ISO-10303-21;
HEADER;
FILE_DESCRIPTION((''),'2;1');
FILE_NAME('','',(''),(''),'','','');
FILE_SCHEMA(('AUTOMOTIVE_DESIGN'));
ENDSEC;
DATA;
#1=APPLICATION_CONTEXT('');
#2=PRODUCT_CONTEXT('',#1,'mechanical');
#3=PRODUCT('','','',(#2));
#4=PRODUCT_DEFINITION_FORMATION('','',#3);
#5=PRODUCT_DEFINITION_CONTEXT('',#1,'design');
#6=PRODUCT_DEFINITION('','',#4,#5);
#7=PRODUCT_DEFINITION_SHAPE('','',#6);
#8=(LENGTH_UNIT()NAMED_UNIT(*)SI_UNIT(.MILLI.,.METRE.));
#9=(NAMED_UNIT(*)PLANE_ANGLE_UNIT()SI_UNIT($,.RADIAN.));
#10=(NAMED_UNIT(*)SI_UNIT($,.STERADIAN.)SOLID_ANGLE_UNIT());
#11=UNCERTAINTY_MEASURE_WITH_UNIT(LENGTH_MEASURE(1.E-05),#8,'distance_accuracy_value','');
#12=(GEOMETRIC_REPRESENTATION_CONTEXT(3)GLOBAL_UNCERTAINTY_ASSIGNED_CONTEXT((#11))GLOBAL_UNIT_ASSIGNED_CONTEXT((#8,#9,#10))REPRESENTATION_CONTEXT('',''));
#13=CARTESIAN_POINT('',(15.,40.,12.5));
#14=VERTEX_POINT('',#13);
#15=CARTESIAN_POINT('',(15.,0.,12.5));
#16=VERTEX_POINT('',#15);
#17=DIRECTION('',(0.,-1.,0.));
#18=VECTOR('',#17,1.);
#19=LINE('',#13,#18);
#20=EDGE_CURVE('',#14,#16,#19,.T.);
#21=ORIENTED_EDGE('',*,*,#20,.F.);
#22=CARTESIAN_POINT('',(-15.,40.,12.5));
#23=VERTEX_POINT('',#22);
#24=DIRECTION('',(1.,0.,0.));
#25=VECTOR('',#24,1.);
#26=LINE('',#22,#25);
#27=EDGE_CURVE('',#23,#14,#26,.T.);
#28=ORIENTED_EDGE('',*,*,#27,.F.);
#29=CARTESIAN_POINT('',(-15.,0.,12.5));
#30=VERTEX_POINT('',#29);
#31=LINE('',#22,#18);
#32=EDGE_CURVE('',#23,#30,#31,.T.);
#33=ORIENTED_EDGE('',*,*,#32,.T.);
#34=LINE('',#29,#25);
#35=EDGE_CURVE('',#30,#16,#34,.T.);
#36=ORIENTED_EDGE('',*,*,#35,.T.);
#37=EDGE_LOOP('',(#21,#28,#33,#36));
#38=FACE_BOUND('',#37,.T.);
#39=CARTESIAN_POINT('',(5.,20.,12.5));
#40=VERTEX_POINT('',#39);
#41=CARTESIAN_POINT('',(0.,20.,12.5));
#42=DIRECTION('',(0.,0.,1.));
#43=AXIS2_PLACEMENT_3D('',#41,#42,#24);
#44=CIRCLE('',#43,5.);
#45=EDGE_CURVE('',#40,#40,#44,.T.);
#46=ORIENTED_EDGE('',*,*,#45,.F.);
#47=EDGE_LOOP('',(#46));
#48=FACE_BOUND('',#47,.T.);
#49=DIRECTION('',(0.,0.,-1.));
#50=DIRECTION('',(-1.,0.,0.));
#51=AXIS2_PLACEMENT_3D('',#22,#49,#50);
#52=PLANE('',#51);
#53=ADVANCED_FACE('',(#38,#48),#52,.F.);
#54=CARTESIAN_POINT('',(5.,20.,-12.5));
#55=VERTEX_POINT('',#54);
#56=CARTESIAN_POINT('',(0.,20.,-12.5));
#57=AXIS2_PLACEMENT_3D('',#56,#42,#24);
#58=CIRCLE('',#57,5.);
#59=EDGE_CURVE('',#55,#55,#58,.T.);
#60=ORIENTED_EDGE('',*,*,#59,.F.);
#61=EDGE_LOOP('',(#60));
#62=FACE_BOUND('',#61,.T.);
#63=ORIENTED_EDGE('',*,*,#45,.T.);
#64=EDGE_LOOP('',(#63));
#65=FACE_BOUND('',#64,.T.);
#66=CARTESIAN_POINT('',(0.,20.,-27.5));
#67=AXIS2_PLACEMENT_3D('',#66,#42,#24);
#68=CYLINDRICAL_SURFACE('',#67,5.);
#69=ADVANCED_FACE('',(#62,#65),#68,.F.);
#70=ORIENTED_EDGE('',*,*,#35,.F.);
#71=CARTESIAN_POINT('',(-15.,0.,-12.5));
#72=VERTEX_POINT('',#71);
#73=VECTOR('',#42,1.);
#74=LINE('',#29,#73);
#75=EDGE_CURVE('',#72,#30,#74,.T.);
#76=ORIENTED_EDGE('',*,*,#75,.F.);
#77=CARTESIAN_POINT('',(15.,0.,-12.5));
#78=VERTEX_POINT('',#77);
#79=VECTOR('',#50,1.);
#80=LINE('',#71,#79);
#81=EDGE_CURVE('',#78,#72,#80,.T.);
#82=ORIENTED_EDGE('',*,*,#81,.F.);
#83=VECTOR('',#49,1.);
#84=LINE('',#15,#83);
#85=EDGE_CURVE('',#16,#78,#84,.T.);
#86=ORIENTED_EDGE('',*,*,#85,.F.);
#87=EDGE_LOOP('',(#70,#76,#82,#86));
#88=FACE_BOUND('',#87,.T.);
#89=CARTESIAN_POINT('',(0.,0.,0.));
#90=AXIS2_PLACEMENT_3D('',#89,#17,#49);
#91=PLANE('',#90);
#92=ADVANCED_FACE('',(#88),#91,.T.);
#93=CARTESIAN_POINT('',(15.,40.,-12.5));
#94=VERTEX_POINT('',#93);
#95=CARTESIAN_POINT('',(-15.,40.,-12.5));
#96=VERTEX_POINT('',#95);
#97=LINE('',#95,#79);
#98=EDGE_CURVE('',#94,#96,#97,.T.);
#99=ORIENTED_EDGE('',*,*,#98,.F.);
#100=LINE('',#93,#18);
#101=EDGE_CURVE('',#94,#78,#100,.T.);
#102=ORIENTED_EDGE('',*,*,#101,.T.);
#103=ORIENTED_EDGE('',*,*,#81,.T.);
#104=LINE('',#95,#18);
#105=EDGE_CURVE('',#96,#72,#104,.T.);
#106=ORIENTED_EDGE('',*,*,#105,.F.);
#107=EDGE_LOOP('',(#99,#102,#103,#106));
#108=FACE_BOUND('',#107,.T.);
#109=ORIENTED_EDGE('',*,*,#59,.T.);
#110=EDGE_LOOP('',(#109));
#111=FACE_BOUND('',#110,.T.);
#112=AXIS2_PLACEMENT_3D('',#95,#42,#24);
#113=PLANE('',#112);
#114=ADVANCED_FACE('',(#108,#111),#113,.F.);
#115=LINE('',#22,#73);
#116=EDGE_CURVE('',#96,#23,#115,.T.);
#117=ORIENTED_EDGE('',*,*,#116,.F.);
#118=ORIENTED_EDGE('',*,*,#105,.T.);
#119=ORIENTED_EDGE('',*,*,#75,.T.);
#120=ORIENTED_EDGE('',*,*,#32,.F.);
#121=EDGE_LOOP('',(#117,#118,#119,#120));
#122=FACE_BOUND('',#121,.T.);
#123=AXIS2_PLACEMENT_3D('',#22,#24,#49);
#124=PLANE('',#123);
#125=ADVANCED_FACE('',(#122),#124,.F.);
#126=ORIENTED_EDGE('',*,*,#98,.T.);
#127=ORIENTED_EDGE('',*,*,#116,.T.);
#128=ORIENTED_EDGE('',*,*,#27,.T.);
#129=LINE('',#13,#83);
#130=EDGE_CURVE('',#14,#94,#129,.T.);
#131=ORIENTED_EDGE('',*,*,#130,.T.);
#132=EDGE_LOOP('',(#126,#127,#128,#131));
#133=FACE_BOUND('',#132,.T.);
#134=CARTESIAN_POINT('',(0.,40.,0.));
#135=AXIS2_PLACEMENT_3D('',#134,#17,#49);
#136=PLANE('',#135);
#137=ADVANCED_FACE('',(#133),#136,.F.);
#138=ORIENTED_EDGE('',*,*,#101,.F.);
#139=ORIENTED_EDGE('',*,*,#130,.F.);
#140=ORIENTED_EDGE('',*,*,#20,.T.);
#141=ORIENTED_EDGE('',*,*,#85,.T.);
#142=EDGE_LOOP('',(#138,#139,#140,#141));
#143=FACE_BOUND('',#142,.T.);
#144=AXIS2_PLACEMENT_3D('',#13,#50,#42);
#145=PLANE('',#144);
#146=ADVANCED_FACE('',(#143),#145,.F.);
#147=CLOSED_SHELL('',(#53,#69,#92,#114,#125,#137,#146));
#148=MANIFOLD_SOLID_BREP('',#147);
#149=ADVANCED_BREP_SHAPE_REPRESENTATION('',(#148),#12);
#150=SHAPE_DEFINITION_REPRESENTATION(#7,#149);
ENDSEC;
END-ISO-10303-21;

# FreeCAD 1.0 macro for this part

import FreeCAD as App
import Part
import Sketcher


def add_polygon(sketch, points):
    """Adds a closed chain of lines whose ends are joined by coincident constraints."""
    first, n = sketch.GeometryCount, len(points)
    for a, b in zip(points, points[1:] + points[:1]):
        sketch.addGeometry(Part.LineSegment(App.Vector(*a, 0), App.Vector(*b, 0)), False)
    for i in range(n):
        sketch.addConstraint(Sketcher.Constraint("Coincident", first + i, 2, first + (i + 1) % n, 1))

doc = App.newDocument("Part")
body = doc.addObject("PartDesign::Body", "Body")

# Sketch on XZ plane
sketch1 = body.newObject("Sketcher::SketchObject", "Sketch")
sketch1.AttachmentSupport = (doc.getObject("XZ_Plane"), [""])
sketch1.MapMode = "FlatFace"
add_polygon(sketch1, [(-15, -12), (-15, 12), (15, 12), (15, -12)])  # lines 0-3
sketch1.addConstraint(Sketcher.Constraint("Vertical", 0))
sketch1.addConstraint(Sketcher.Constraint("Horizontal", 1))
sketch1.addConstraint(Sketcher.Constraint("Vertical", 2))
sketch1.addConstraint(Sketcher.Constraint("Horizontal", 3))
sketch1.addConstraint(Sketcher.Constraint("Symmetric", 0, 2, 2, 2, -1, 1))
sketch1.addConstraint(Sketcher.Constraint("DistanceX", 1, 1, 1, 2, 30.0))
sketch1.addConstraint(Sketcher.Constraint("DistanceY", 0, 1, 0, 2, 25.0))
pad1 = body.newObject("PartDesign::Pad", "Pad")
pad1.Profile = sketch1
pad1.Length = 40
pad1.Reversed = True

# Sketch on XY plane
sketch2 = body.newObject("Sketcher::SketchObject", "Sketch001")
sketch2.AttachmentSupport = (doc.getObject("XY_Plane"), [""])
sketch2.MapMode = "FlatFace"
sketch2.AttachmentOffset = App.Placement(App.Vector(0, 0, 12.5), App.Rotation())
sketch2.addGeometry(Part.Circle(App.Vector(0, 20, 0), App.Vector(0, 0, 1), 5), False)
sketch2.addConstraint(Sketcher.Constraint("PointOnObject", 0, 3, -2))
sketch2.addConstraint(Sketcher.Constraint("Diameter", 0, 10.0))
sketch2.addConstraint(Sketcher.Constraint("DistanceY", -1, 1, 0, 3, 20.0))
pocket1 = body.newObject("PartDesign::Pocket", "Pocket")
pocket1.Profile = sketch2
pocket1.Length = 40

doc.recompute()
